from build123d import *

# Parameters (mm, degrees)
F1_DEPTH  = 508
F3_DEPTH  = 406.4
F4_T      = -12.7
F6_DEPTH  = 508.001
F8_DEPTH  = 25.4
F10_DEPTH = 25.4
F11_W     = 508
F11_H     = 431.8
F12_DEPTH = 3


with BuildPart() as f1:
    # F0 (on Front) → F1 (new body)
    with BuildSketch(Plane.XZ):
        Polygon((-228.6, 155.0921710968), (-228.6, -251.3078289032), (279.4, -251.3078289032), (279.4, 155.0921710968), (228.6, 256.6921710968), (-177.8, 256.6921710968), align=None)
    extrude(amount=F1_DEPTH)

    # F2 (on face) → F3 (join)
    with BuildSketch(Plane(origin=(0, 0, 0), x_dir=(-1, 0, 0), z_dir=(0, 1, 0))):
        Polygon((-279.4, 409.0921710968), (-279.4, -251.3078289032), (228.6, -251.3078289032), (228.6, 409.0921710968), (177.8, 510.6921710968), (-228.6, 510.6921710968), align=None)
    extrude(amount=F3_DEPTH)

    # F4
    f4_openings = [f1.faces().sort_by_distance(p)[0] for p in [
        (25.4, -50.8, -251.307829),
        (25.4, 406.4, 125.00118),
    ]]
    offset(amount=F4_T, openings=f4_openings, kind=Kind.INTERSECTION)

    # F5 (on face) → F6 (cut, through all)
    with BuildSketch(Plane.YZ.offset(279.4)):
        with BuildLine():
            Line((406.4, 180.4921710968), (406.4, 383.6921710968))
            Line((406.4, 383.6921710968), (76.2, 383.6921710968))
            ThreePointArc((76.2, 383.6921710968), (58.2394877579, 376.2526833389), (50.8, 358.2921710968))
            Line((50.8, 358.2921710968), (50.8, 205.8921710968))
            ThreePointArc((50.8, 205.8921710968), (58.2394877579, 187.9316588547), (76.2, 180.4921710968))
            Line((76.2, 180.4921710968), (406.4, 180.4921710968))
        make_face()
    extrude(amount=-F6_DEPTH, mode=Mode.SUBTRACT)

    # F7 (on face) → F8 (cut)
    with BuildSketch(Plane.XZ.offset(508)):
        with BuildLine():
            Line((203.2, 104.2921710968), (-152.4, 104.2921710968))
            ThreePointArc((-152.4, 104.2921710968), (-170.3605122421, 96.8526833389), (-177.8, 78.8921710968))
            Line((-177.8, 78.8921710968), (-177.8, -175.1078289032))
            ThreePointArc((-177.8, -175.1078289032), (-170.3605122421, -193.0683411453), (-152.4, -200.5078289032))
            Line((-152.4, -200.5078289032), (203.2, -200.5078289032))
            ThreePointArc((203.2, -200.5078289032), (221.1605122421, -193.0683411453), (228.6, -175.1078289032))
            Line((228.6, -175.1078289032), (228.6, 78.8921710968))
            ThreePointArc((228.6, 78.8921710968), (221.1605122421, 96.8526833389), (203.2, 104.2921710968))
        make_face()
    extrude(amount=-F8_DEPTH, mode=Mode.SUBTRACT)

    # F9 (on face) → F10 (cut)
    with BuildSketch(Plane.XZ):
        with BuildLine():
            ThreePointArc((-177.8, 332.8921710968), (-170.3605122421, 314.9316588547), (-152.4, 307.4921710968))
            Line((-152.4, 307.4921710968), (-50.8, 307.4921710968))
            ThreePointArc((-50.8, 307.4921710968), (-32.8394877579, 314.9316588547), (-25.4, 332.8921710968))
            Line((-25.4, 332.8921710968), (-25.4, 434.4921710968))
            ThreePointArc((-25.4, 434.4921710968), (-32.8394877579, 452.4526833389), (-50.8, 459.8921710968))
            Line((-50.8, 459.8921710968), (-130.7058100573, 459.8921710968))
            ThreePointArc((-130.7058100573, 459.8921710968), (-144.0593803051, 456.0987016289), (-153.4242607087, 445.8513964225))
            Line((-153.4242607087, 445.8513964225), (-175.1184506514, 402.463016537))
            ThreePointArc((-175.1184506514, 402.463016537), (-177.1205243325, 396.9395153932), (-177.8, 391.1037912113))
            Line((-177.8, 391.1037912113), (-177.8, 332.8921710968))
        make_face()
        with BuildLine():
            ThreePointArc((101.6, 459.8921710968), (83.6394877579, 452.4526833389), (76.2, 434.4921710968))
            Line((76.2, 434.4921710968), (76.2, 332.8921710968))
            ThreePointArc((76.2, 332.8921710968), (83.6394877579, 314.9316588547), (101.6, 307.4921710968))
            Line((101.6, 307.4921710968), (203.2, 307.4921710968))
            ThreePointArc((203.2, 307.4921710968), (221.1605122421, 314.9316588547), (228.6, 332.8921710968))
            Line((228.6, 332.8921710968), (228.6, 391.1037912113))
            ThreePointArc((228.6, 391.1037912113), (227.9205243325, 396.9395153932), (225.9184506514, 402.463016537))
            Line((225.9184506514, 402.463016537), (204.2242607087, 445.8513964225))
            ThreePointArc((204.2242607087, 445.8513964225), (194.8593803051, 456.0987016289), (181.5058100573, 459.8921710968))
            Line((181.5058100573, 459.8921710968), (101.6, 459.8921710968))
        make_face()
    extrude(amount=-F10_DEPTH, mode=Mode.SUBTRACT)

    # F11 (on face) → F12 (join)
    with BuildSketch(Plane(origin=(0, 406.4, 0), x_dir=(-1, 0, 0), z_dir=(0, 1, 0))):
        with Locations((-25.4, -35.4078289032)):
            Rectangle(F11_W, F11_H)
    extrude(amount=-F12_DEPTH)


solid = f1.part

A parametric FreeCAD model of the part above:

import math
import FreeCAD as App
import Part
import Sketcher

V = App.Vector
Q = App.Units.Quantity


def faces_at(feature, points):
    """Names of the faces that lie closest to the given points."""
    faces = feature.Shape.Faces
    near = lambda p: min(range(len(faces)), key=lambda i: faces[i].distToShape(Part.Vertex(*p))[0])
    return sorted({f"Face{near(p) + 1}" for p in points})


def add_polygon(sketch, points):
    """Adds a closed chain of lines whose ends are joined by coincident constraints."""
    first, n = sketch.GeometryCount, len(points)
    for a, b in zip(points, points[1:] + points[:1]):
        sketch.addGeometry(Part.LineSegment(App.Vector(*a, 0), App.Vector(*b, 0)), False)
    for i in range(n):
        sketch.addConstraint(Sketcher.Constraint("Coincident", first + i, 2, first + (i + 1) % n, 1))

doc = App.newDocument("Part")
body = doc.addObject("PartDesign::Body", "Body")

# Sketch on XZ plane
sketch1 = doc.addObject("Sketcher::SketchObject", "Sketch")
body.addObject(sketch1)
sketch1.AttachmentSupport = (doc.XZ_Plane, [""])
sketch1.MapMode = "FlatFace"
add_polygon(sketch1, [(-229, 155), (-229, -251), (279, -251), (279, 155), (229, 257), (-178, 257)])  # lines 0-5
sketch1.addConstraint([
    Sketcher.Constraint("Vertical", 0),
    Sketcher.Constraint("Horizontal", 1),
    Sketcher.Constraint("Vertical", 2),
    Sketcher.Constraint("Horizontal", 4),
    Sketcher.Constraint("Horizontal", 2, 2, 5, 2),
    Sketcher.Constraint("Equal", 4, 0),
    Sketcher.Constraint("Equal", 3, 5),
    Sketcher.Constraint("DistanceX", 1, 1, 1, 2, Q("20 in")),
    Sketcher.Constraint("DistanceX", 4, 2, 4, 1, Q("16 in")),
    Sketcher.Constraint("DistanceX", 0, 2, -1, 1, Q("9 in")),
    Sketcher.Constraint("DistanceY", 2, 2, 3, 2, Q("4 in")),
    Sketcher.Constraint("DistanceY", 0, 2, -1, 1, 251.307829),
])
pad1 = doc.addObject("PartDesign::Pad", "Pad")
body.addObject(pad1)
pad1.Profile = sketch1
pad1.Length = Q("20 in")

# Sketch on XZ plane
sketch2 = doc.addObject("Sketcher::SketchObject", "Sketch001")
body.addObject(sketch2)
sketch2.AttachmentSupport = (doc.XZ_Plane, [""])
sketch2.MapMode = "FlatFace"
add_polygon(sketch2, [(279, 409), (279, -251), (-229, -251), (-229, 409), (-178, 511), (229, 511)])  # lines 0-5
sketch2.addConstraint([
    Sketcher.Constraint("Vertical", 0),
    Sketcher.Constraint("Horizontal", 1),
    Sketcher.Constraint("Vertical", 2),
    Sketcher.Constraint("Horizontal", 4),
    Sketcher.Constraint("Horizontal", 2, 2, 5, 2),
    Sketcher.Constraint("Equal", 3, 5),
    Sketcher.Constraint("DistanceX", 1, 2, 1, 1, Q("20 in")),
    Sketcher.Constraint("DistanceX", 4, 1, 4, 2, Q("16 in")),
    Sketcher.Constraint("DistanceY", 0, 2, 0, 1, Q("26 in")),
    Sketcher.Constraint("DistanceX", -1, 1, 0, 2, Q("11 in")),
    Sketcher.Constraint("DistanceY", 2, 2, 3, 2, Q("4 in")),
    Sketcher.Constraint("DistanceY", 0, 2, -1, 1, 251.307829),
])
pad2 = doc.addObject("PartDesign::Pad", "Pad001")
body.addObject(pad2)
pad2.Profile = sketch2
pad2.Length = Q("16 in")
pad2.Reversed = True
doc.recompute()

thickness = doc.addObject("PartDesign::Thickness", "Thickness")
body.addObject(thickness)
thickness.Base = (pad2, faces_at(pad2, [(25.4, -50.8, -251.308), (25.4, 406.4, 129.692)]))
thickness.Value = Q("0.5 in")
thickness.Reversed = True
thickness.Join = "Intersection"

# Sketch on YZ plane
sketch3 = doc.addObject("Sketcher::SketchObject", "Sketch002")
body.addObject(sketch3)
sketch3.AttachmentSupport = (doc.YZ_Plane, [""])
sketch3.MapMode = "FlatFace"
sketch3.AttachmentOffset = App.Placement(V(0, 0, 11 * 25.4), App.Rotation())
sketch3.addGeometry([
    Part.LineSegment(V(406, 180, 0), V(406, 384, 0)),  # 0
    Part.LineSegment(V(406, 384, 0), V(76, 384, 0)),  # 1
    Part.ArcOfCircle(Part.Circle(V(76, 358, 0), V(0, 0, 1), 25), math.radians(90), math.radians(180)),  # 2
    Part.LineSegment(V(51, 358, 0), V(51, 206, 0)),  # 3
    Part.ArcOfCircle(Part.Circle(V(76, 206, 0), V(0, 0, 1), 25), math.radians(180), math.radians(270)),  # 4
    Part.LineSegment(V(76, 180, 0), V(406, 180, 0)),  # 5
], False)
sketch3.addConstraint([
    Sketcher.Constraint("Coincident", 0, 2, 1, 1),
    Sketcher.Constraint("Tangent", 1, 2, 2, 1),
    Sketcher.Constraint("Tangent", 2, 2, 3, 1),
    Sketcher.Constraint("Tangent", 3, 2, 4, 1),
    Sketcher.Constraint("Tangent", 4, 2, 5, 1),
    Sketcher.Constraint("Coincident", 5, 2, 0, 1),
    Sketcher.Constraint("Vertical", 0),
    Sketcher.Constraint("Horizontal", 1),
    Sketcher.Constraint("Vertical", 3),
    Sketcher.Constraint("Horizontal", 5),
    Sketcher.Constraint("Equal", 2, 4),
    Sketcher.Constraint("Radius", 2, Q("1 in")),
    Sketcher.Constraint("DistanceX", 1, 2, 1, 1, Q("13 in")),
    Sketcher.Constraint("DistanceY", 0, 1, 0, 2, Q("8 in")),
    Sketcher.Constraint("DistanceX", -1, 1, 2, 3, Q("3 in")),
    Sketcher.Constraint("DistanceY", -1, 1, 2, 3, 358.292171),
])
pocket1 = doc.addObject("PartDesign::Pocket", "Pocket")
body.addObject(pocket1)
pocket1.Profile = sketch3
pocket1.Type = "ThroughAll"

# Sketch on XZ plane
sketch4 = doc.addObject("Sketcher::SketchObject", "Sketch003")
body.addObject(sketch4)
sketch4.AttachmentSupport = (doc.XZ_Plane, [""])
sketch4.MapMode = "FlatFace"
sketch4.AttachmentOffset = App.Placement(V(0, 0, 20 * 25.4), App.Rotation())
sketch4.addGeometry([
    Part.LineSegment(V(203, 104, 0), V(-152, 104, 0)),  # 0
    Part.ArcOfCircle(Part.Circle(V(-152, 79, 0), V(0, 0, 1), 25), math.radians(90), math.radians(180)),  # 1
    Part.LineSegment(V(-178, 79, 0), V(-178, -175, 0)),  # 2
    Part.ArcOfCircle(Part.Circle(V(-152, -175, 0), V(0, 0, 1), 25), math.radians(180), math.radians(270)),  # 3
    Part.LineSegment(V(-152, -201, 0), V(203, -201, 0)),  # 4
    Part.ArcOfCircle(Part.Circle(V(203, -175, 0), V(0, 0, 1), 25), math.radians(-90), math.radians(0)),  # 5
    Part.LineSegment(V(229, -175, 0), V(229, 79, 0)),  # 6
    Part.ArcOfCircle(Part.Circle(V(203, 79, 0), V(0, 0, 1), 25), math.radians(0), math.radians(90)),  # 7
], False)
sketch4.addConstraint([
    Sketcher.Constraint("Tangent", 0, 2, 1, 1),
    Sketcher.Constraint("Tangent", 1, 2, 2, 1),
    Sketcher.Constraint("Tangent", 2, 2, 3, 1),
    Sketcher.Constraint("Tangent", 3, 2, 4, 1),
    Sketcher.Constraint("Tangent", 4, 2, 5, 1),
    Sketcher.Constraint("Tangent", 5, 2, 6, 1),
    Sketcher.Constraint("Tangent", 6, 2, 7, 1),
    Sketcher.Constraint("Tangent", 7, 2, 0, 1),
    Sketcher.Constraint("Horizontal", 0),
    Sketcher.Constraint("Vertical", 2),
    Sketcher.Constraint("Horizontal", 4),
    Sketcher.Constraint("Vertical", 6),
    Sketcher.Constraint("Equal", 1, 3),
    Sketcher.Constraint("Equal", 3, 5),
    Sketcher.Constraint("Equal", 5, 7),
    Sketcher.Constraint("Radius", 1, Q("1 in")),
    Sketcher.Constraint("DistanceX", 0, 2, 0, 1, Q("14 in")),
    Sketcher.Constraint("DistanceY", 2, 2, 2, 1, Q("10 in")),
    Sketcher.Constraint("DistanceX", 1, 3, -1, 1, Q("6 in")),
    Sketcher.Constraint("DistanceY", -1, 1, 1, 3, 78.892171),
])
pocket2 = doc.addObject("PartDesign::Pocket", "Pocket001")
body.addObject(pocket2)
pocket2.Profile = sketch4
pocket2.Length = Q("1 in")

# Sketch on XZ plane
sketch5 = doc.addObject("Sketcher::SketchObject", "Sketch004")
body.addObject(sketch5)
sketch5.AttachmentSupport = (doc.XZ_Plane, [""])
sketch5.MapMode = "FlatFace"
sketch5.addGeometry([
    Part.ArcOfCircle(Part.Circle(V(-152, 333, 0), V(0, 0, 1), 25), math.radians(180), math.radians(270)),  # 0
    Part.LineSegment(V(-152, 307, 0), V(-51, 307, 0)),  # 1
    Part.ArcOfCircle(Part.Circle(V(-51, 333, 0), V(0, 0, 1), 25), math.radians(-90), math.radians(0)),  # 2
    Part.LineSegment(V(-25, 333, 0), V(-25, 434, 0)),  # 3
    Part.ArcOfCircle(Part.Circle(V(-51, 434, 0), V(0, 0, 1), 25), math.radians(0), math.radians(90)),  # 4
    Part.LineSegment(V(-51, 460, 0), V(-131, 460, 0)),  # 5
    Part.ArcOfCircle(Part.Circle(V(-131, 434, 0), V(0, 0, 1), 25), math.radians(90), math.radians(153)),  # 6
    Part.LineSegment(V(-153, 446, 0), V(-175, 402, 0)),  # 7
    Part.ArcOfCircle(Part.Circle(V(-152, 391, 0), V(0, 0, 1), 25), math.radians(153), math.radians(180)),  # 8
    Part.LineSegment(V(-178, 391, 0), V(-178, 333, 0)),  # 9
    Part.ArcOfCircle(Part.Circle(V(102, 434, 0), V(0, 0, 1), 25), math.radians(90), math.radians(180)),  # 10
    Part.LineSegment(V(76, 434, 0), V(76, 333, 0)),  # 11
    Part.ArcOfCircle(Part.Circle(V(102, 333, 0), V(0, 0, 1), 25), math.radians(180), math.radians(270)),  # 12
    Part.LineSegment(V(102, 307, 0), V(203, 307, 0)),  # 13
    Part.ArcOfCircle(Part.Circle(V(203, 333, 0), V(0, 0, 1), 25), math.radians(-90), math.radians(0)),  # 14
    Part.LineSegment(V(229, 333, 0), V(229, 391, 0)),  # 15
    Part.ArcOfCircle(Part.Circle(V(203, 391, 0), V(0, 0, 1), 25), math.radians(0), math.radians(27)),  # 16
    Part.LineSegment(V(226, 402, 0), V(204, 446, 0)),  # 17
    Part.ArcOfCircle(Part.Circle(V(182, 434, 0), V(0, 0, 1), 25), math.radians(27), math.radians(90)),  # 18
    Part.LineSegment(V(182, 460, 0), V(102, 460, 0)),  # 19
], False)
sketch5.addConstraint([
    Sketcher.Constraint("Tangent", 0, 2, 1, 1),
    Sketcher.Constraint("Tangent", 1, 2, 2, 1),
    Sketcher.Constraint("Tangent", 2, 2, 3, 1),
    Sketcher.Constraint("Tangent", 3, 2, 4, 1),
    Sketcher.Constraint("Tangent", 4, 2, 5, 1),
    Sketcher.Constraint("Tangent", 5, 2, 6, 1),
    Sketcher.Constraint("Tangent", 6, 2, 7, 1),
    Sketcher.Constraint("Tangent", 7, 2, 8, 1),
    Sketcher.Constraint("Tangent", 8, 2, 9, 1),
    Sketcher.Constraint("Tangent", 9, 2, 0, 1),
    Sketcher.Constraint("Tangent", 10, 2, 11, 1),
    Sketcher.Constraint("Tangent", 11, 2, 12, 1),
    Sketcher.Constraint("Tangent", 12, 2, 13, 1),
    Sketcher.Constraint("Tangent", 13, 2, 14, 1),
    Sketcher.Constraint("Tangent", 14, 2, 15, 1),
    Sketcher.Constraint("Tangent", 15, 2, 16, 1),
    Sketcher.Constraint("Tangent", 16, 2, 17, 1),
    Sketcher.Constraint("Tangent", 17, 2, 18, 1),
    Sketcher.Constraint("Tangent", 18, 2, 19, 1),
    Sketcher.Constraint("Tangent", 19, 2, 10, 1),
    Sketcher.Constraint("Horizontal", 1),
    Sketcher.Constraint("Vertical", 3),
    Sketcher.Constraint("Horizontal", 5),
    Sketcher.Constraint("Vertical", 9),
    Sketcher.Constraint("Vertical", 11),
    Sketcher.Constraint("Horizontal", 13),
    Sketcher.Constraint("Vertical", 15),
    Sketcher.Constraint("Horizontal", 19),
    Sketcher.Constraint("Equal", 0, 2),
    Sketcher.Constraint("Equal", 2, 4),
    Sketcher.Constraint("Equal", 4, 6),
    Sketcher.Constraint("Equal", 6, 8),
    Sketcher.Constraint("Equal", 8, 10),
    Sketcher.Constraint("Equal", 10, 12),
    Sketcher.Constraint("Equal", 12, 14),
    Sketcher.Constraint("Equal", 14, 16),
    Sketcher.Constraint("Equal", 16, 18),
    Sketcher.Constraint("Horizontal", 6, 3, 10, 3),
    Sketcher.Constraint("Horizontal", 2, 3, 12, 3),
    Sketcher.Constraint("Horizontal", 8, 3, 16, 3),
    Sketcher.Constraint("Horizontal", 7, 2, 16, 2),
    Sketcher.Constraint("Equal", 1, 13),
    Sketcher.Constraint("Equal", 13, 3),
    Sketcher.Constraint("Radius", 0, Q("1 in")),
    Sketcher.Constraint("DistanceX", 1, 1, 1, 2, Q("4 in")),
    Sketcher.Constraint("DistanceX", 0, 3, -1, 1, Q("6 in")),
    Sketcher.Constraint("DistanceX", -1, 1, 10, 3, Q("4 in")),
    Sketcher.Constraint("DistanceX", 5, 2, 5, 1, 79.90581),
    Sketcher.Constraint("DistanceY", 9, 2, 9, 1, 58.21162),
    Sketcher.Constraint("DistanceY", -1, 1, 0, 3, 332.892171),
])
pocket3 = doc.addObject("PartDesign::Pocket", "Pocket002")
body.addObject(pocket3)
pocket3.Profile = sketch5
pocket3.Length = Q("1 in")

# Sketch on XZ plane
sketch6 = doc.addObject("Sketcher::SketchObject", "Sketch005")
body.addObject(sketch6)
sketch6.AttachmentSupport = (doc.XZ_Plane, [""])
sketch6.MapMode = "FlatFace"
sketch6.AttachmentOffset = App.Placement(V(0, 0, -16 * 25.4), App.Rotation())
add_polygon(sketch6, [(279, 180), (279, -251), (-229, -251), (-229, 180)])  # lines 0-3
sketch6.addConstraint([
    Sketcher.Constraint("Vertical", 0),
    Sketcher.Constraint("Horizontal", 1),
    Sketcher.Constraint("Vertical", 2),
    Sketcher.Constraint("Horizontal", 3),
    Sketcher.Constraint("DistanceX", 1, 2, 1, 1, Q("20 in")),
    Sketcher.Constraint("DistanceY", 0, 2, 0, 1, Q("17 in")),
    Sketcher.Constraint("DistanceX", -1, 1, 0, 2, Q("11 in")),
    Sketcher.Constraint("DistanceY", 0, 2, -1, 1, 251.307829),
])
pad3 = doc.addObject("PartDesign::Pad", "Pad002")
body.addObject(pad3)
pad3.Profile = sketch6
pad3.Length = 3

doc.recompute()
